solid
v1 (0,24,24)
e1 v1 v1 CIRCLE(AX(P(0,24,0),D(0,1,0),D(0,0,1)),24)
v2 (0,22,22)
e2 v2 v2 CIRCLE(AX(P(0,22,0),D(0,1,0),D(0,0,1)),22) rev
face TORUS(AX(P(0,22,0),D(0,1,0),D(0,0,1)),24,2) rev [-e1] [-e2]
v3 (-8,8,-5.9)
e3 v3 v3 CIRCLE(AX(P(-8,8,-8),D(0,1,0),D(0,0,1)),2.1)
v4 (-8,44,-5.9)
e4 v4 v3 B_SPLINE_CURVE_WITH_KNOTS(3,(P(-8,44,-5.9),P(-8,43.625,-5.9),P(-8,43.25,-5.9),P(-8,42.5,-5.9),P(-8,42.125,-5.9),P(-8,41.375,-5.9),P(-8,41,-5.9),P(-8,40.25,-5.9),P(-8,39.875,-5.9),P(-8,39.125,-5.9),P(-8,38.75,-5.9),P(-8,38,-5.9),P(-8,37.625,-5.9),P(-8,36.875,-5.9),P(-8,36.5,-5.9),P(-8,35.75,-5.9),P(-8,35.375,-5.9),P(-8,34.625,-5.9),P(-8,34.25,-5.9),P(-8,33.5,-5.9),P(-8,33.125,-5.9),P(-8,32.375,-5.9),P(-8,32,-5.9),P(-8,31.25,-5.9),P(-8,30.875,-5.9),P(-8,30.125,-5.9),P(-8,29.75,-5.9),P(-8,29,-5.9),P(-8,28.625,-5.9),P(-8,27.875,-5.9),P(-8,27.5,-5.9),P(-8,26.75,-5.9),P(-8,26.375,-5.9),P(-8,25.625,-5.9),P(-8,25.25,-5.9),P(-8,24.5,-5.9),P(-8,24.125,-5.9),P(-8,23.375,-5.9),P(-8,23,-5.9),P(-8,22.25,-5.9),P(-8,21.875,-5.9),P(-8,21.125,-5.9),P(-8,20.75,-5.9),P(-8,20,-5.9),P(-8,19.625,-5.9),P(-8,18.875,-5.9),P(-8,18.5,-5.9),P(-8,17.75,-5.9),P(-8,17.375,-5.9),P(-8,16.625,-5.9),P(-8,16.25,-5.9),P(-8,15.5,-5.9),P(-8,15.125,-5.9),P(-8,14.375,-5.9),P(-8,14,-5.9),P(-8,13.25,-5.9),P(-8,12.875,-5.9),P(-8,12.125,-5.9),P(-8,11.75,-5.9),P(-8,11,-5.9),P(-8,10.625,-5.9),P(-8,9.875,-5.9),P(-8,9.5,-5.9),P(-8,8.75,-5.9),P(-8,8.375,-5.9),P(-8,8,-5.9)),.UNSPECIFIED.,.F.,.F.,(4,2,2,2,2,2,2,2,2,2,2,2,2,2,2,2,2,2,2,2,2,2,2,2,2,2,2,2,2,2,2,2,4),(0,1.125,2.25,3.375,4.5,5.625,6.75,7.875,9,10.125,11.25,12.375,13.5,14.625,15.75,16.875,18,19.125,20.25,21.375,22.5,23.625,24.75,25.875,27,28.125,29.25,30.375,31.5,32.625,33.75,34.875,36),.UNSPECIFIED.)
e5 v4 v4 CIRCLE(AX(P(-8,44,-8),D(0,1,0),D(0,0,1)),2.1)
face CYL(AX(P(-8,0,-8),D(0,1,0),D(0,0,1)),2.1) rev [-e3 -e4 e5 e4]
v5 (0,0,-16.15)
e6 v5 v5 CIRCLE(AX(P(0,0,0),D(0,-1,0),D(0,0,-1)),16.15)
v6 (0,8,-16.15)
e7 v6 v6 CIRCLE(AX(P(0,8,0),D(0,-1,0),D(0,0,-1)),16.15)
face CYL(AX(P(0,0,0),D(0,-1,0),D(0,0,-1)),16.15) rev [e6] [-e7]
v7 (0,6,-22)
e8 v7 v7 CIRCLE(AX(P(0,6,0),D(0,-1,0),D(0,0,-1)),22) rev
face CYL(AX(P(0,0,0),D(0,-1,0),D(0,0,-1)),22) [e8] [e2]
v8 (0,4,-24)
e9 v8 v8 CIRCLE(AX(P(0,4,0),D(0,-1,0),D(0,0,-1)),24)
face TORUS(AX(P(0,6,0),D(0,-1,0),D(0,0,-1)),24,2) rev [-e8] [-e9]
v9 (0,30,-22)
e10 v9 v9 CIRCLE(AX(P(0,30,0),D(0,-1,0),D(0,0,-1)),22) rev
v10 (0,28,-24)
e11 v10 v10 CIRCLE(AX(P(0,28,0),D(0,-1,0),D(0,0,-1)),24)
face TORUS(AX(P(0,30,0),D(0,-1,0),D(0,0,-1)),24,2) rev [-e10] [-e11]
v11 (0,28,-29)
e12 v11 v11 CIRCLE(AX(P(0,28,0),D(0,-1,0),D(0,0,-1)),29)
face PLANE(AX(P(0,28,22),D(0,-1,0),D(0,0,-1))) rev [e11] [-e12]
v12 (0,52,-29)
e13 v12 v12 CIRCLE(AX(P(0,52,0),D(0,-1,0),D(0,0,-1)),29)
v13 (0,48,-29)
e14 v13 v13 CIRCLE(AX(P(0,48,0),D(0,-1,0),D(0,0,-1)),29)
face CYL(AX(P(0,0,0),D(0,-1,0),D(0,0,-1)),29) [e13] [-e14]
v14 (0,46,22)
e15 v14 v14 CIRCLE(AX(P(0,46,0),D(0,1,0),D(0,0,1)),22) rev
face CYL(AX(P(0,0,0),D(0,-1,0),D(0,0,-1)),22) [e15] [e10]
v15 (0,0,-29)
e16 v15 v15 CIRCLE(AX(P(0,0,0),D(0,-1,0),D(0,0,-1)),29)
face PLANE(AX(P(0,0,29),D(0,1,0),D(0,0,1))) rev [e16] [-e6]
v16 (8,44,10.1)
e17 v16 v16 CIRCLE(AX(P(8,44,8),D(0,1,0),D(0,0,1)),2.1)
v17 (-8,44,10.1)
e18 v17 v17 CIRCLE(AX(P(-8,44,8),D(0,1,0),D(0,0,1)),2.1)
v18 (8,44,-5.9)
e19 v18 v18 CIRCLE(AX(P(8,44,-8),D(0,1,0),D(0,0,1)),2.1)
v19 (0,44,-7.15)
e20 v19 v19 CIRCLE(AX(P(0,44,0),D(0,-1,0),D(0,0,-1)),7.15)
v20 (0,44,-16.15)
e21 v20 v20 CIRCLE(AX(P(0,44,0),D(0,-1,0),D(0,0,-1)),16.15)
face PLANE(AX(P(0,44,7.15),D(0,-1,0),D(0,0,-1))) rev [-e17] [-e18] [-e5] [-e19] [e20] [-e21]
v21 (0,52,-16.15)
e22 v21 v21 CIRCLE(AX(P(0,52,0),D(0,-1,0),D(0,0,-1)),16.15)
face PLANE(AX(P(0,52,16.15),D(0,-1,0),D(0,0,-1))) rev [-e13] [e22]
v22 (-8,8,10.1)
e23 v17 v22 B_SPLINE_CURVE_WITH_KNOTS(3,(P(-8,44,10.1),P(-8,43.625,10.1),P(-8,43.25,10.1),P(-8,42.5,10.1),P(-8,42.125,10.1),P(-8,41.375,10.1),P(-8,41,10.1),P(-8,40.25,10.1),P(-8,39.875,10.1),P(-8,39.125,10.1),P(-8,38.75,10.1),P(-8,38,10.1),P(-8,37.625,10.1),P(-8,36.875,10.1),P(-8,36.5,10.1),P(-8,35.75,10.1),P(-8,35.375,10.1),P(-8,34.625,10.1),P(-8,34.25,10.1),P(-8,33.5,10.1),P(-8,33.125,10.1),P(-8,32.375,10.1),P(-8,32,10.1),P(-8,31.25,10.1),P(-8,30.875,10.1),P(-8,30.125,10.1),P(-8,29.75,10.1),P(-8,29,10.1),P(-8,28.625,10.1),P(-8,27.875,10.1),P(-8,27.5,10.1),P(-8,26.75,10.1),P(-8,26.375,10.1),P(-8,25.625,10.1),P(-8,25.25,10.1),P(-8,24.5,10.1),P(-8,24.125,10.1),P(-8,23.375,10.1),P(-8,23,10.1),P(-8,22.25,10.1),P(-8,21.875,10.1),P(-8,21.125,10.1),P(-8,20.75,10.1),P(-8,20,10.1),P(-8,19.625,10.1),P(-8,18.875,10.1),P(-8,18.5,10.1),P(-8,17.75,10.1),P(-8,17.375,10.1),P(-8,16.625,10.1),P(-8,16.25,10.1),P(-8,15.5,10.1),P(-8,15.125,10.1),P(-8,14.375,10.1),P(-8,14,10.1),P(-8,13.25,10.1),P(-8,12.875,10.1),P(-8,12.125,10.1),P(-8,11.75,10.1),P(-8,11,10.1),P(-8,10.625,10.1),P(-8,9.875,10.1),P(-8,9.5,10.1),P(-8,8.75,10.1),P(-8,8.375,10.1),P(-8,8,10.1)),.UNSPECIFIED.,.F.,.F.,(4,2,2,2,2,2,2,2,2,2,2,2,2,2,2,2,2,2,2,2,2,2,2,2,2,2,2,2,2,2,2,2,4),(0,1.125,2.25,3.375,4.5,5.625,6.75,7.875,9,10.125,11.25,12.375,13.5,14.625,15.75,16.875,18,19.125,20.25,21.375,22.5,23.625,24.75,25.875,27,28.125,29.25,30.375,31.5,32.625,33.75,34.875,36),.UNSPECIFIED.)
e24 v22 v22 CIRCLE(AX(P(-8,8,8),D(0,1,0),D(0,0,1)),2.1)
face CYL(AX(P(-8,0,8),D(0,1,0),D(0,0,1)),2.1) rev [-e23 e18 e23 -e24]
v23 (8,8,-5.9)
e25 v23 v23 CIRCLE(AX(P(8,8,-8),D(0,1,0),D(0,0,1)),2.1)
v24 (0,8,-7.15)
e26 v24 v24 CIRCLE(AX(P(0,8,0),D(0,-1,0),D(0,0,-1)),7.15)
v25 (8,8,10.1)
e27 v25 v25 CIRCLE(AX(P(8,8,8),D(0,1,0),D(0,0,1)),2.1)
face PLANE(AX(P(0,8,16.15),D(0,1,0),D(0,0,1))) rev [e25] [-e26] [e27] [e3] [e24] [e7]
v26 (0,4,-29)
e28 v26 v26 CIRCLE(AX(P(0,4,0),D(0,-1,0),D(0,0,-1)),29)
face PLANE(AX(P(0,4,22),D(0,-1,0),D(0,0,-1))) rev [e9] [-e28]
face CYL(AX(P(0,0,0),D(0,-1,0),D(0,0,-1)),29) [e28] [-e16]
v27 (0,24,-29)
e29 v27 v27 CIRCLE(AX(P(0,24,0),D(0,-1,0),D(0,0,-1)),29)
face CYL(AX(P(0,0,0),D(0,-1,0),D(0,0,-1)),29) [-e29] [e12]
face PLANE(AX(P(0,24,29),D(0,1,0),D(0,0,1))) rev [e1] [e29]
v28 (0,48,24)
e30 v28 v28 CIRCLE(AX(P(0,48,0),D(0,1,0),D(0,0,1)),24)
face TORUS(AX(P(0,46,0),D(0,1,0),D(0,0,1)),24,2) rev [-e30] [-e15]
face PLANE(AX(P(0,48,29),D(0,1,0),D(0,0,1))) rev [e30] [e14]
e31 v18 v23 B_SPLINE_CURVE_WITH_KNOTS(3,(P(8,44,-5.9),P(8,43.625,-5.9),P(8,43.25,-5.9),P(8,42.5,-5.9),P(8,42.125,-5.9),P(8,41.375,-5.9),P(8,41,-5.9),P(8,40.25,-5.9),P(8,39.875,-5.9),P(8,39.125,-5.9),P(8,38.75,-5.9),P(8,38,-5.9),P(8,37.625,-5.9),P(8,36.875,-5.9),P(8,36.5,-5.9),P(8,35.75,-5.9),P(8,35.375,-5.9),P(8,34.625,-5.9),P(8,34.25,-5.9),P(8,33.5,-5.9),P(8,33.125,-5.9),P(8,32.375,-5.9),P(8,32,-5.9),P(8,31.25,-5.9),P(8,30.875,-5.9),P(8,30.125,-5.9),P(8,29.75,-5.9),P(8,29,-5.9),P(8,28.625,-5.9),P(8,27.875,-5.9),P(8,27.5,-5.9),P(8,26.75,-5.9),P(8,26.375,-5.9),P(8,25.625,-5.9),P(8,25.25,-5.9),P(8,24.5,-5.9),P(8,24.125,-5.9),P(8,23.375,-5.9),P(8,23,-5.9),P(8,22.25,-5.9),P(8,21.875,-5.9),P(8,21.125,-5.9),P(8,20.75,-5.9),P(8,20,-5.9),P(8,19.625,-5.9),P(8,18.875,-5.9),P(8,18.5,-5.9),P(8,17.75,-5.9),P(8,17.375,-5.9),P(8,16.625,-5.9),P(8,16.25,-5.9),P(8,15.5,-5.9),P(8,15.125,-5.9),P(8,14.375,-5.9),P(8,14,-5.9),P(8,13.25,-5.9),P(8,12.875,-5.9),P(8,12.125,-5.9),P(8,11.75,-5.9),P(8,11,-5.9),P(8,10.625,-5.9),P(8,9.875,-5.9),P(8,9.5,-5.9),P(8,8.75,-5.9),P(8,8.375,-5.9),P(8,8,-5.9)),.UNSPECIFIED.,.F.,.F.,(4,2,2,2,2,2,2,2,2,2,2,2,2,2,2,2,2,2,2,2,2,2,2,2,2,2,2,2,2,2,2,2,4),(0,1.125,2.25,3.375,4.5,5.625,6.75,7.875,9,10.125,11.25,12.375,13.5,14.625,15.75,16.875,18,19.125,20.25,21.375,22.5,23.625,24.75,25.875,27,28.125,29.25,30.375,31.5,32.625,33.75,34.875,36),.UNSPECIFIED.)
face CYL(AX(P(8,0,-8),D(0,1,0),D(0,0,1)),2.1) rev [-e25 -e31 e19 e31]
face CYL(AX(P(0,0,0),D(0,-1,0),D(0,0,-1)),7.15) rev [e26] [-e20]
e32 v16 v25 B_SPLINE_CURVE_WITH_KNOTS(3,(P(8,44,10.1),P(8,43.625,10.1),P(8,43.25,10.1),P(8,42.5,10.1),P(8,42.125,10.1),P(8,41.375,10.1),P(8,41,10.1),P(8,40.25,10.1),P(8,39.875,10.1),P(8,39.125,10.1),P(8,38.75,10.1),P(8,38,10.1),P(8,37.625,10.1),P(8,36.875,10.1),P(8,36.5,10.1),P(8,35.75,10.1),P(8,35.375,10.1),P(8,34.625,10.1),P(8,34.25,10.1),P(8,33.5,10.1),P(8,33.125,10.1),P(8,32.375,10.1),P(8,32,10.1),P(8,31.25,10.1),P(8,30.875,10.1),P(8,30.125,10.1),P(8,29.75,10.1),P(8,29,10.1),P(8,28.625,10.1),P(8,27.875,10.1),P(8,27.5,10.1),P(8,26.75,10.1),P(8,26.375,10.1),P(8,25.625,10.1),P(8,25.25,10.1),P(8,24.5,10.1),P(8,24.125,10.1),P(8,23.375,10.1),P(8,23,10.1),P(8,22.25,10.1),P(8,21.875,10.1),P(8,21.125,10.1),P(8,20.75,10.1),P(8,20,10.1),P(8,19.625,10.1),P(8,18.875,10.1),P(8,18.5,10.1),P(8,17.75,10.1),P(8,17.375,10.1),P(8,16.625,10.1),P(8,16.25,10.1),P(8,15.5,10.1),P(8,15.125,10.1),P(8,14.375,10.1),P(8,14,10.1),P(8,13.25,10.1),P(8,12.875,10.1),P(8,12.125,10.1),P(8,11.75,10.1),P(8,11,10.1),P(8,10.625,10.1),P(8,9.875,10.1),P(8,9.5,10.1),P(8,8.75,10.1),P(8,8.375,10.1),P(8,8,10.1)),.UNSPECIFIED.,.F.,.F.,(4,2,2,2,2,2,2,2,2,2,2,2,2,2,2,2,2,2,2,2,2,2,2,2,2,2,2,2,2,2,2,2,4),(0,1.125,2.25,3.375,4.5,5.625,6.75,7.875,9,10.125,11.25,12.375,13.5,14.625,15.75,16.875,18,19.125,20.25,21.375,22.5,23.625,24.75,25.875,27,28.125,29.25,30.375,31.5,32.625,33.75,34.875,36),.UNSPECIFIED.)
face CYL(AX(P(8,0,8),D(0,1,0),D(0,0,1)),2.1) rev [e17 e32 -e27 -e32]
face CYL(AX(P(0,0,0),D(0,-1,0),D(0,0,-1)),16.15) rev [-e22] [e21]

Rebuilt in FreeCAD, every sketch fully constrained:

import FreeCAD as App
import Part
import Sketcher

V = App.Vector


def edges_at(feature, points):
    """Names of the edges that pass closest to the given points."""
    edges = feature.Shape.Edges
    near = lambda p: min(range(len(edges)), key=lambda i: edges[i].distToShape(Part.Vertex(*p))[0])
    return sorted({f"Edge{near(p) + 1}" for p in points})

doc = App.newDocument("Part")
body = doc.addObject("PartDesign::Body", "Body")

# Sketch on YZ plane
sketch1 = body.newObject("Sketcher::SketchObject", "Sketch")
sketch1.AttachmentSupport = (doc.getObject("YZ_Plane"), [""])
sketch1.MapMode = "FlatFace"
sketch1.addGeometry(Part.LineSegment(V(44, 7.2, 0), V(44, 16.1, 0)), False)
sketch1.addGeometry(Part.LineSegment(V(44, 16.1, 0), V(52, 16.1, 0)), False)
sketch1.addGeometry(Part.LineSegment(V(52, 16.1, 0), V(52, 29, 0)), False)
sketch1.addGeometry(Part.LineSegment(V(52, 29, 0), V(48, 29, 0)), False)
sketch1.addGeometry(Part.LineSegment(V(48, 29, 0), V(48, 22, 0)), False)
sketch1.addGeometry(Part.LineSegment(V(48, 22, 0), V(28, 22, 0)), False)
sketch1.addGeometry(Part.LineSegment(V(28, 22, 0), V(28, 29, 0)), False)
sketch1.addGeometry(Part.LineSegment(V(28, 29, 0), V(24, 29, 0)), False)
sketch1.addGeometry(Part.LineSegment(V(24, 29, 0), V(24, 22, 0)), False)
sketch1.addGeometry(Part.LineSegment(V(24, 22, 0), V(4, 22, 0)), False)
sketch1.addGeometry(Part.LineSegment(V(4, 22, 0), V(4, 29, 0)), False)
sketch1.addGeometry(Part.LineSegment(V(4, 29, 0), V(0, 29, 0)), False)
sketch1.addGeometry(Part.LineSegment(V(0, 29, 0), V(0, 16.1, 0)), False)
sketch1.addGeometry(Part.LineSegment(V(0, 16.1, 0), V(8, 16.1, 0)), False)
sketch1.addGeometry(Part.LineSegment(V(8, 16.1, 0), V(8, 7.2, 0)), False)
sketch1.addGeometry(Part.LineSegment(V(8, 7.2, 0), V(44, 7.2, 0)), False)
sketch1.addConstraint(Sketcher.Constraint("Coincident", 0, 2, 1, 1))
sketch1.addConstraint(Sketcher.Constraint("Coincident", 1, 2, 2, 1))
sketch1.addConstraint(Sketcher.Constraint("Coincident", 2, 2, 3, 1))
sketch1.addConstraint(Sketcher.Constraint("Coincident", 3, 2, 4, 1))
sketch1.addConstraint(Sketcher.Constraint("Coincident", 4, 2, 5, 1))
sketch1.addConstraint(Sketcher.Constraint("Coincident", 5, 2, 6, 1))
sketch1.addConstraint(Sketcher.Constraint("Coincident", 6, 2, 7, 1))
sketch1.addConstraint(Sketcher.Constraint("Coincident", 7, 2, 8, 1))
sketch1.addConstraint(Sketcher.Constraint("Coincident", 8, 2, 9, 1))
sketch1.addConstraint(Sketcher.Constraint("Coincident", 9, 2, 10, 1))
sketch1.addConstraint(Sketcher.Constraint("Coincident", 10, 2, 11, 1))
sketch1.addConstraint(Sketcher.Constraint("Coincident", 11, 2, 12, 1))
sketch1.addConstraint(Sketcher.Constraint("Coincident", 12, 2, 13, 1))
sketch1.addConstraint(Sketcher.Constraint("Coincident", 13, 2, 14, 1))
sketch1.addConstraint(Sketcher.Constraint("Coincident", 14, 2, 15, 1))
sketch1.addConstraint(Sketcher.Constraint("Coincident", 15, 2, 0, 1))
sketch1.addConstraint(Sketcher.Constraint("Vertical", 0))
sketch1.addConstraint(Sketcher.Constraint("Horizontal", 1))
sketch1.addConstraint(Sketcher.Constraint("Vertical", 2))
sketch1.addConstraint(Sketcher.Constraint("Horizontal", 3))
sketch1.addConstraint(Sketcher.Constraint("Vertical", 4))
sketch1.addConstraint(Sketcher.Constraint("Horizontal", 5))
sketch1.addConstraint(Sketcher.Constraint("Vertical", 6))
sketch1.addConstraint(Sketcher.Constraint("Horizontal", 7))
sketch1.addConstraint(Sketcher.Constraint("Vertical", 8))
sketch1.addConstraint(Sketcher.Constraint("Horizontal", 9))
sketch1.addConstraint(Sketcher.Constraint("Vertical", 10))
sketch1.addConstraint(Sketcher.Constraint("Horizontal", 11))
sketch1.addConstraint(Sketcher.Constraint("Vertical", 12))
sketch1.addConstraint(Sketcher.Constraint("Horizontal", 13))
sketch1.addConstraint(Sketcher.Constraint("Vertical", 14))
sketch1.addConstraint(Sketcher.Constraint("Horizontal", 15))
sketch1.addConstraint(Sketcher.Constraint("PointOnObject", 11, 2, -2))
sketch1.addConstraint(Sketcher.Constraint("Horizontal", 3, 2, 6, 2))
sketch1.addConstraint(Sketcher.Constraint("Horizontal", 5, 2, 8, 2))
sketch1.addConstraint(Sketcher.Constraint("Horizontal", 7, 2, 10, 2))
sketch1.addConstraint(Sketcher.Constraint("Horizontal", 1, 2, 12, 2))
sketch1.addConstraint(Sketcher.Constraint("Equal", 3, 7))
sketch1.addConstraint(Sketcher.Constraint("Equal", 5, 9))
sketch1.addConstraint(Sketcher.Constraint("Equal", 7, 11))
sketch1.addConstraint(Sketcher.Constraint("Equal", 1, 13))
sketch1.addConstraint(Sketcher.Constraint("DistanceX", 1, 1, 1, 2, 8.0))
sketch1.addConstraint(Sketcher.Constraint("DistanceX", 3, 2, 3, 1, 4.0))
sketch1.addConstraint(Sketcher.Constraint("DistanceX", 5, 2, 5, 1, 20.0))
sketch1.addConstraint(Sketcher.Constraint("DistanceY", 0, 1, 0, 2, 9.0))
sketch1.addConstraint(Sketcher.Constraint("DistanceY", 4, 2, 4, 1, 7.0))
sketch1.addConstraint(Sketcher.Constraint("DistanceY", -1, 1, 2, 2, 29.0))
sketch1.addConstraint(Sketcher.Constraint("DistanceY", 2, 1, 2, 2, 12.85))
revolution = body.newObject("PartDesign::Revolution", "Revolution")
revolution.Profile = sketch1
revolution.ReferenceAxis = (sketch1, ["H_Axis"])
revolution.Angle = 360

# Sketch on XZ plane
sketch2 = body.newObject("Sketcher::SketchObject", "Sketch001")
sketch2.AttachmentSupport = (doc.getObject("XZ_Plane"), [""])
sketch2.MapMode = "FlatFace"
sketch2.AttachmentOffset = App.Placement(V(0, 0, -44), App.Rotation())
sketch2.addGeometry(Part.Circle(V(-8, -8, 0), V(0, 0, 1), 2.1), False)
sketch2.addGeometry(Part.Circle(V(8, -8, 0), V(0, 0, 1), 2.1), False)
sketch2.addGeometry(Part.Circle(V(8, 8, 0), V(0, 0, 1), 2.1), False)
sketch2.addGeometry(Part.Circle(V(-8, 8, 0), V(0, 0, 1), 2.1), False)
sketch2.addConstraint(Sketcher.Constraint("Equal", 0, 1))
sketch2.addConstraint(Sketcher.Constraint("Equal", 1, 2))
sketch2.addConstraint(Sketcher.Constraint("Equal", 2, 3))
sketch2.addConstraint(Sketcher.Constraint("Symmetric", 0, 3, 2, 3, -1, 1))
sketch2.addConstraint(Sketcher.Constraint("Symmetric", 1, 3, 3, 3, -1, 1))
sketch2.addConstraint(Sketcher.Constraint("Symmetric", 0, 3, 1, 3, -2))
sketch2.addConstraint(Sketcher.Constraint("Diameter", 0, 4.2))
sketch2.addConstraint(Sketcher.Constraint("DistanceX", 0, 3, -1, 1, 8.0))
sketch2.addConstraint(Sketcher.Constraint("DistanceY", 0, 3, -1, 1, 8.0))
pocket1 = body.newObject("PartDesign::Pocket", "Pocket")
pocket1.Profile = sketch2
pocket1.Type = "ThroughAll"
pocket1.Reversed = True
doc.recompute()

fillet = body.newObject("PartDesign::Fillet", "Fillet")
fillet.Base = (pocket1, edges_at(pocket1, [
    (0, 4, 22),
    (0, 24, 22),
    (0, 28, 22),
    (0, 48, 22),
]))
fillet.Radius = 2

doc.recompute()
